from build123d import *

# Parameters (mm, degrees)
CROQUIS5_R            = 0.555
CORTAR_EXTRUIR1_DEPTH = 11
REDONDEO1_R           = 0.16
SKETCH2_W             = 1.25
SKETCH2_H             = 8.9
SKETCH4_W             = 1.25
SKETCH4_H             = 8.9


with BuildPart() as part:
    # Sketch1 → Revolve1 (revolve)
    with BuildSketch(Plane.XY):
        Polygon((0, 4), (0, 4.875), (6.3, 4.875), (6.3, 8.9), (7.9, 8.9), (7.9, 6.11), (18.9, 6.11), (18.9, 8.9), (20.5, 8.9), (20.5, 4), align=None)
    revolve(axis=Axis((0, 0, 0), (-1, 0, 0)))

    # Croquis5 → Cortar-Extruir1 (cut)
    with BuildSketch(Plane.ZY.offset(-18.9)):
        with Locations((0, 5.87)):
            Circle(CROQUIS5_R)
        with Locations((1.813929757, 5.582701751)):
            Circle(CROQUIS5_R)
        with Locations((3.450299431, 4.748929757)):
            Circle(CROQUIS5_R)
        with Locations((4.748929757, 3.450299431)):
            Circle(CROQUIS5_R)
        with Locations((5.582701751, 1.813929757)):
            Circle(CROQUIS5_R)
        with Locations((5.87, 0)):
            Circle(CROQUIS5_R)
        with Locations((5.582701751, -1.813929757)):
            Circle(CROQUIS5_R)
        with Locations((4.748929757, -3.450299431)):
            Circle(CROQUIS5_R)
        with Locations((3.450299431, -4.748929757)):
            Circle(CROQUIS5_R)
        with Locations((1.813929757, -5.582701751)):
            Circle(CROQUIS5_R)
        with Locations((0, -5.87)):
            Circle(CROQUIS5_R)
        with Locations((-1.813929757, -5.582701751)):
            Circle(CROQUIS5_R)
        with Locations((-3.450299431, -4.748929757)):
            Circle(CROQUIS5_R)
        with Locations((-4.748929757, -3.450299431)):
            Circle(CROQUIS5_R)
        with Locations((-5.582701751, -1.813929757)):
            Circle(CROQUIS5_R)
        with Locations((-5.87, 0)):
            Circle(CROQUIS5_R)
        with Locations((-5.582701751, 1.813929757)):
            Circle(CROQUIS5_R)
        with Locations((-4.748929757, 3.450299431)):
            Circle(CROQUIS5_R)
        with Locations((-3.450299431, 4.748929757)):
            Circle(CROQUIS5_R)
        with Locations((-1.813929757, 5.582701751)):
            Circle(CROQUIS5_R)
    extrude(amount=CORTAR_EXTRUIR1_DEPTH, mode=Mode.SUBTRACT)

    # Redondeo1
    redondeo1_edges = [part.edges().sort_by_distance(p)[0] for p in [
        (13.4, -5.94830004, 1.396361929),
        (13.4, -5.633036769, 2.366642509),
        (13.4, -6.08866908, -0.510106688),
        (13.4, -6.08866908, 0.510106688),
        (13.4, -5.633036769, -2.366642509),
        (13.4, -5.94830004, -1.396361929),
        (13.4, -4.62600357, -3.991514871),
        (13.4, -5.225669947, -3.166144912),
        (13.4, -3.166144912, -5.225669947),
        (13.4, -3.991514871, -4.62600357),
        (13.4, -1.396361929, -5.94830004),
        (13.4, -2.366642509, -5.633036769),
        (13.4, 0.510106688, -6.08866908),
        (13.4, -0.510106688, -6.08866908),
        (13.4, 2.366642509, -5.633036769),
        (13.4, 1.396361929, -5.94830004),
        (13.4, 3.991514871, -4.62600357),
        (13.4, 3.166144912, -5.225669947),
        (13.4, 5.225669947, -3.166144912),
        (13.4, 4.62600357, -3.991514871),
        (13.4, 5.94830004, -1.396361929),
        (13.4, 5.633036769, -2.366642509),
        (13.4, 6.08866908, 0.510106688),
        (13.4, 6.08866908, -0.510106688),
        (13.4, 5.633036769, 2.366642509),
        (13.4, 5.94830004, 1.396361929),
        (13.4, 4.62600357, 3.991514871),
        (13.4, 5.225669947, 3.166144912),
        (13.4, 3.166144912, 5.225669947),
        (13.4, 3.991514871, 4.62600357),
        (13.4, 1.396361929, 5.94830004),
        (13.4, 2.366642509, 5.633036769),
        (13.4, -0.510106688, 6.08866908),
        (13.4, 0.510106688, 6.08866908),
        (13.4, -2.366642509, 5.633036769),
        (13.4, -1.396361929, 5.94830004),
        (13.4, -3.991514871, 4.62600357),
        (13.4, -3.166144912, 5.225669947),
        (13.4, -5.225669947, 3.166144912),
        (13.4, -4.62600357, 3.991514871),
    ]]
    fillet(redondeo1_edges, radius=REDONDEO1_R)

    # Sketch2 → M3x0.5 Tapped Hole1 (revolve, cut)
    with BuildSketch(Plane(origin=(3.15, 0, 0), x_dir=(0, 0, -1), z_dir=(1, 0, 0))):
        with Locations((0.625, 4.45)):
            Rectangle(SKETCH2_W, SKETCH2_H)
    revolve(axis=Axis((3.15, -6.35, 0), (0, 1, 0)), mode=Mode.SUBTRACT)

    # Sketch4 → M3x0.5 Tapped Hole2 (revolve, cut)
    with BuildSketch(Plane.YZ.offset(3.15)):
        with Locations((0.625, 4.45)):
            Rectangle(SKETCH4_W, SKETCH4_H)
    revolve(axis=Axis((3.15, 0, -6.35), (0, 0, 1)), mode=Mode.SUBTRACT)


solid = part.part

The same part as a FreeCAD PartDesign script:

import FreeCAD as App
import Part
import Sketcher
from FreeCAD import Vector
Q = App.Units.Quantity


def edges_at(feature, points):
    """Names of the edges that pass closest to the given points."""
    edges = feature.Shape.Edges
    near = lambda p: min(range(len(edges)), key=lambda i: edges[i].distToShape(Part.Vertex(*p))[0])
    return sorted({f"Edge{near(p) + 1}" for p in points})

doc = App.newDocument("Part")
params = doc.addObject("Spreadsheet::Sheet", "Params")
for row, (alias, value) in enumerate([
    ("sketch1_width", "11 mm"),
    ("sketch1_width2", "20.5 mm"),
    ("sketch1_width3", "1.6 mm"),
    ("sketch1_height", "4.9 mm"),
    ("sketch1_height2", "2.79 mm"),
    ("revolution_angle", "360 deg"),
    ("sketch2_diameter", "1.11 mm"),
    ("pocket1_length", "11 mm"),
    ("fillet_radius", "0.16 mm"),
    ("sketch3_width", "8.9 mm"),
    ("sketch3_height", "1.25 mm"),
    ("groove_angle", "360 deg"),
    ("sketch4_height", "8.9 mm"),
    ("sketch4_width", "1.25 mm"),
    ("groove2_angle", "360 deg"),
], start=1):
    params.set(f"A{row}", alias)
    params.set(f"B{row}", "=" + value)
    params.setAlias(f"B{row}", alias)

body = doc.addObject("PartDesign::Body", "Body")

sketch1 = body.newObject("Sketcher::SketchObject", "Sketch")
sketch1.AttachmentSupport = (doc.getObject("XY_Plane"), [""])
sketch1.MapMode = "FlatFace"
sketch1.addGeometry(Part.LineSegment(Vector(0, 4.9, 0), Vector(0, 4, 0)), False)
sketch1.addGeometry(Part.LineSegment(Vector(0, 4, 0), Vector(20.5, 4, 0)), False)
sketch1.addGeometry(Part.LineSegment(Vector(20.5, 4, 0), Vector(20.5, 8.9, 0)), False)
sketch1.addGeometry(Part.LineSegment(Vector(20.5, 8.9, 0), Vector(18.9, 8.9, 0)), False)
sketch1.addGeometry(Part.LineSegment(Vector(18.9, 8.9, 0), Vector(18.9, 6.1, 0)), False)
sketch1.addGeometry(Part.LineSegment(Vector(18.9, 6.1, 0), Vector(7.9, 6.1, 0)), False)
sketch1.addGeometry(Part.LineSegment(Vector(7.9, 6.1, 0), Vector(7.9, 8.9, 0)), False)
sketch1.addGeometry(Part.LineSegment(Vector(7.9, 8.9, 0), Vector(6.3, 8.9, 0)), False)
sketch1.addGeometry(Part.LineSegment(Vector(6.3, 8.9, 0), Vector(6.3, 4.9, 0)), False)
sketch1.addGeometry(Part.LineSegment(Vector(6.3, 4.9, 0), Vector(0, 4.9, 0)), False)
sketch1.addConstraint(Sketcher.Constraint("Coincident", 0, 2, 1, 1))
sketch1.addConstraint(Sketcher.Constraint("Coincident", 1, 2, 2, 1))
sketch1.addConstraint(Sketcher.Constraint("Coincident", 2, 2, 3, 1))
sketch1.addConstraint(Sketcher.Constraint("Coincident", 3, 2, 4, 1))
sketch1.addConstraint(Sketcher.Constraint("Coincident", 4, 2, 5, 1))
sketch1.addConstraint(Sketcher.Constraint("Coincident", 5, 2, 6, 1))
sketch1.addConstraint(Sketcher.Constraint("Coincident", 6, 2, 7, 1))
sketch1.addConstraint(Sketcher.Constraint("Coincident", 7, 2, 8, 1))
sketch1.addConstraint(Sketcher.Constraint("Coincident", 8, 2, 9, 1))
sketch1.addConstraint(Sketcher.Constraint("Coincident", 9, 2, 0, 1))
sketch1.addConstraint(Sketcher.Constraint("Vertical", 0))
sketch1.addConstraint(Sketcher.Constraint("Horizontal", 1))
sketch1.addConstraint(Sketcher.Constraint("Vertical", 2))
sketch1.addConstraint(Sketcher.Constraint("Horizontal", 3))
sketch1.addConstraint(Sketcher.Constraint("Vertical", 4))
sketch1.addConstraint(Sketcher.Constraint("Horizontal", 5))
sketch1.addConstraint(Sketcher.Constraint("Vertical", 6))
sketch1.addConstraint(Sketcher.Constraint("Horizontal", 7))
sketch1.addConstraint(Sketcher.Constraint("Vertical", 8))
sketch1.addConstraint(Sketcher.Constraint("Horizontal", 9))
sketch1.addConstraint(Sketcher.Constraint("PointOnObject", 0, 2, -2))
sketch1.addConstraint(Sketcher.Constraint("Horizontal", 3, 2, 6, 2))
sketch1.addConstraint(Sketcher.Constraint("Equal", 3, 7))
sketch1.addConstraint(Sketcher.Constraint("DistanceX", 5, 2, 5, 1, Q("11 mm")))
sketch1.addConstraint(Sketcher.Constraint("DistanceX", 1, 1, 1, 2, Q("20.5 mm")))
sketch1.addConstraint(Sketcher.Constraint("DistanceX", 3, 2, 3, 1, Q("1.6 mm")))
sketch1.addConstraint(Sketcher.Constraint("DistanceY", 2, 1, 2, 2, Q("4.9 mm")))
sketch1.addConstraint(Sketcher.Constraint("DistanceY", -1, 1, 0, 2, Q("4 mm")))
sketch1.addConstraint(Sketcher.Constraint("DistanceY", 4, 2, 4, 1, Q("2.79 mm")))
sketch1.addConstraint(Sketcher.Constraint("DistanceY", 0, 2, 0, 1, Q("0.875 mm")))
sketch1.setExpression("Constraints[23]", "Params.sketch1_width")
sketch1.setExpression("Constraints[24]", "Params.sketch1_width2")
sketch1.setExpression("Constraints[25]", "Params.sketch1_width3")
sketch1.setExpression("Constraints[26]", "Params.sketch1_height")
sketch1.setExpression("Constraints[28]", "Params.sketch1_height2")
revolution = body.newObject("PartDesign::Revolution", "Revolution")
revolution.Profile = sketch1
revolution.ReferenceAxis = (sketch1, ["H_Axis"])
revolution.setExpression("Angle", "Params.revolution_angle")

sketch2 = body.newObject("Sketcher::SketchObject", "Sketch001")
sketch2.AttachmentSupport = (doc.getObject("YZ_Plane"), [""])
sketch2.MapMode = "FlatFace"
sketch2.AttachmentOffset = App.Placement(Vector(0, 0, 18.9), App.Rotation())
sketch2.addGeometry(Part.Circle(Vector(5.9, 0, 0), Vector(0, 0, 1), 0.6), False)
sketch2.addGeometry(Part.Circle(Vector(5.6, 1.8, 0), Vector(0, 0, 1), 0.6), False)
sketch2.addGeometry(Part.Circle(Vector(4.7, 3.5, 0), Vector(0, 0, 1), 0.6), False)
sketch2.addGeometry(Part.Circle(Vector(3.5, 4.7, 0), Vector(0, 0, 1), 0.6), False)
sketch2.addGeometry(Part.Circle(Vector(1.8, 5.6, 0), Vector(0, 0, 1), 0.6), False)
sketch2.addGeometry(Part.Circle(Vector(0, 5.9, 0), Vector(0, 0, 1), 0.6), False)
sketch2.addGeometry(Part.Circle(Vector(-1.8, 5.6, 0), Vector(0, 0, 1), 0.6), False)
sketch2.addGeometry(Part.Circle(Vector(-3.5, 4.7, 0), Vector(0, 0, 1), 0.6), False)
sketch2.addGeometry(Part.Circle(Vector(-4.7, 3.5, 0), Vector(0, 0, 1), 0.6), False)
sketch2.addGeometry(Part.Circle(Vector(-5.6, 1.8, 0), Vector(0, 0, 1), 0.6), False)
sketch2.addGeometry(Part.Circle(Vector(-5.9, 0, 0), Vector(0, 0, 1), 0.6), False)
sketch2.addGeometry(Part.Circle(Vector(-5.6, -1.8, 0), Vector(0, 0, 1), 0.6), False)
sketch2.addGeometry(Part.Circle(Vector(-4.7, -3.5, 0), Vector(0, 0, 1), 0.6), False)
sketch2.addGeometry(Part.Circle(Vector(-3.5, -4.7, 0), Vector(0, 0, 1), 0.6), False)
sketch2.addGeometry(Part.Circle(Vector(-1.8, -5.6, 0), Vector(0, 0, 1), 0.6), False)
sketch2.addGeometry(Part.Circle(Vector(0, -5.9, 0), Vector(0, 0, 1), 0.6), False)
sketch2.addGeometry(Part.Circle(Vector(1.8, -5.6, 0), Vector(0, 0, 1), 0.6), False)
sketch2.addGeometry(Part.Circle(Vector(3.5, -4.7, 0), Vector(0, 0, 1), 0.6), False)
sketch2.addGeometry(Part.Circle(Vector(4.7, -3.5, 0), Vector(0, 0, 1), 0.6), False)
sketch2.addGeometry(Part.Circle(Vector(5.6, -1.8, 0), Vector(0, 0, 1), 0.6), False)
sketch2.addConstraint(Sketcher.Constraint("Equal", 0, 1))
sketch2.addConstraint(Sketcher.Constraint("Equal", 1, 2))
sketch2.addConstraint(Sketcher.Constraint("Equal", 2, 3))
sketch2.addConstraint(Sketcher.Constraint("Equal", 3, 4))
sketch2.addConstraint(Sketcher.Constraint("Equal", 4, 5))
sketch2.addConstraint(Sketcher.Constraint("Equal", 5, 6))
sketch2.addConstraint(Sketcher.Constraint("Equal", 6, 7))
sketch2.addConstraint(Sketcher.Constraint("Equal", 7, 8))
sketch2.addConstraint(Sketcher.Constraint("Equal", 8, 9))
sketch2.addConstraint(Sketcher.Constraint("Equal", 9, 10))
sketch2.addConstraint(Sketcher.Constraint("Equal", 10, 11))
sketch2.addConstraint(Sketcher.Constraint("Equal", 11, 12))
sketch2.addConstraint(Sketcher.Constraint("Equal", 12, 13))
sketch2.addConstraint(Sketcher.Constraint("Equal", 13, 14))
sketch2.addConstraint(Sketcher.Constraint("Equal", 14, 15))
sketch2.addConstraint(Sketcher.Constraint("Equal", 15, 16))
sketch2.addConstraint(Sketcher.Constraint("Equal", 16, 17))
sketch2.addConstraint(Sketcher.Constraint("Equal", 17, 18))
sketch2.addConstraint(Sketcher.Constraint("Equal", 18, 19))
sketch2.addConstraint(Sketcher.Constraint("Symmetric", 0, 3, 10, 3, -1, 1))
sketch2.addConstraint(Sketcher.Constraint("Symmetric", 1, 3, 11, 3, -1, 1))
sketch2.addConstraint(Sketcher.Constraint("Symmetric", 2, 3, 12, 3, -1, 1))
sketch2.addConstraint(Sketcher.Constraint("Symmetric", 3, 3, 13, 3, -1, 1))
sketch2.addConstraint(Sketcher.Constraint("Symmetric", 4, 3, 14, 3, -1, 1))
sketch2.addConstraint(Sketcher.Constraint("Symmetric", 5, 3, 15, 3, -1, 1))
sketch2.addConstraint(Sketcher.Constraint("Symmetric", 6, 3, 16, 3, -1, 1))
sketch2.addConstraint(Sketcher.Constraint("Symmetric", 7, 3, 17, 3, -1, 1))
sketch2.addConstraint(Sketcher.Constraint("Symmetric", 8, 3, 18, 3, -1, 1))
sketch2.addConstraint(Sketcher.Constraint("Symmetric", 9, 3, 19, 3, -1, 1))
sketch2.addConstraint(Sketcher.Constraint("Symmetric", 4, 3, 6, 3, -2))
sketch2.addConstraint(Sketcher.Constraint("Symmetric", 3, 3, 7, 3, -2))
sketch2.addConstraint(Sketcher.Constraint("Symmetric", 2, 3, 8, 3, -2))
sketch2.addConstraint(Sketcher.Constraint("Symmetric", 1, 3, 9, 3, -2))
sketch2.addConstraint(Sketcher.Constraint("PointOnObject", 0, 3, -1))
sketch2.addConstraint(Sketcher.Constraint("PointOnObject", 5, 3, -2))
sketch2.addConstraint(Sketcher.Constraint("Diameter", 0, Q("1.11 mm")))
sketch2.addConstraint(Sketcher.Constraint("DistanceX", -1, 1, 0, 3, Q("5.87 mm")))
sketch2.addConstraint(Sketcher.Constraint("DistanceY", -1, 1, 5, 3, Q("5.87 mm")))
sketch2.addConstraint(Sketcher.Constraint("DistanceY", 1, 3, 3, 3, Q("2.935 mm")))
sketch2.addConstraint(Sketcher.Constraint("DistanceX", 4, 3, 2, 3, Q("2.935 mm")))
sketch2.addConstraint(Sketcher.Constraint("DistanceX", -1, 1, 1, 3, Q("5.582702 mm")))
sketch2.addConstraint(Sketcher.Constraint("DistanceY", -1, 1, 2, 3, Q("3.450299 mm")))
sketch2.addConstraint(Sketcher.Constraint("DistanceX", -1, 1, 3, 3, Q("3.450299 mm")))
sketch2.addConstraint(Sketcher.Constraint("DistanceY", -1, 1, 4, 3, Q("5.582702 mm")))
sketch2.addConstraint(Sketcher.Constraint("DistanceY", -1, 1, 1, 3, Q("1.81393 mm")))
sketch2.addConstraint(Sketcher.Constraint("DistanceX", -1, 1, 2, 3, Q("4.74893 mm")))
sketch2.setExpression("Constraints[35]", "Params.sketch2_diameter")
pocket1 = body.newObject("PartDesign::Pocket", "Pocket")
pocket1.Profile = sketch2
pocket1.setExpression("Length", "Params.pocket1_length")
doc.recompute()

fillet = body.newObject("PartDesign::Fillet", "Fillet")
fillet.Base = (pocket1, edges_at(pocket1, [
    (13.4, -5.948, 1.396),
    (13.4, -5.633, 2.367),
    (13.4, -6.089, -0.51),
    (13.4, -6.089, 0.51),
    (13.4, -5.633, -2.367),
    (13.4, -5.948, -1.396),
    (13.4, -4.626, -3.992),
    (13.4, -5.226, -3.166),
    (13.4, -3.166, -5.226),
    (13.4, -3.992, -4.626),
    (13.4, -1.396, -5.948),
    (13.4, -2.367, -5.633),
    (13.4, 0.51, -6.089),
    (13.4, -0.51, -6.089),
    (13.4, 2.367, -5.633),
    (13.4, 1.396, -5.948),
    (13.4, 3.992, -4.626),
    (13.4, 3.166, -5.226),
    (13.4, 5.226, -3.166),
    (13.4, 4.626, -3.992),
    (13.4, 5.948, -1.396),
    (13.4, 5.633, -2.367),
    (13.4, 6.089, 0.51),
    (13.4, 6.089, -0.51),
    (13.4, 5.633, 2.367),
    (13.4, 5.948, 1.396),
    (13.4, 4.626, 3.992),
    (13.4, 5.226, 3.166),
    (13.4, 3.166, 5.226),
    (13.4, 3.992, 4.626),
    (13.4, 1.396, 5.948),
    (13.4, 2.367, 5.633),
    (13.4, -0.51, 6.089),
    (13.4, 0.51, 6.089),
    (13.4, -2.367, 5.633),
    (13.4, -1.396, 5.948),
    (13.4, -3.992, 4.626),
    (13.4, -3.166, 5.226),
    (13.4, -5.226, 3.166),
    (13.4, -4.626, 3.992),
]))
fillet.setExpression("Radius", "Params.fillet_radius")

sketch3 = body.newObject("Sketcher::SketchObject", "Sketch002")
sketch3.AttachmentSupport = (doc.getObject("YZ_Plane"), [""])
sketch3.MapMode = "FlatFace"
sketch3.AttachmentOffset = App.Placement(Vector(0, 0, 3.15), App.Rotation())
sketch3.addGeometry(Part.LineSegment(Vector(8.9, 0, 0), Vector(0, 0, 0)), False)
sketch3.addGeometry(Part.LineSegment(Vector(0, 0, 0), Vector(0, -1.2, 0)), False)
sketch3.addGeometry(Part.LineSegment(Vector(0, -1.2, 0), Vector(8.9, -1.2, 0)), False)
sketch3.addGeometry(Part.LineSegment(Vector(8.9, -1.2, 0), Vector(8.9, 0, 0)), False)
sketch3.addConstraint(Sketcher.Constraint("Coincident", 0, 2, 1, 1))
sketch3.addConstraint(Sketcher.Constraint("Coincident", 1, 2, 2, 1))
sketch3.addConstraint(Sketcher.Constraint("Coincident", 2, 2, 3, 1))
sketch3.addConstraint(Sketcher.Constraint("Coincident", 3, 2, 0, 1))
sketch3.addConstraint(Sketcher.Constraint("Horizontal", 0))
sketch3.addConstraint(Sketcher.Constraint("Vertical", 1))
sketch3.addConstraint(Sketcher.Constraint("Horizontal", 2))
sketch3.addConstraint(Sketcher.Constraint("Vertical", 3))
sketch3.addConstraint(Sketcher.Constraint("Coincident", 0, 2, -1, 1))
sketch3.addConstraint(Sketcher.Constraint("DistanceX", 0, 2, 0, 1, Q("8.9 mm")))
sketch3.addConstraint(Sketcher.Constraint("DistanceY", 1, 2, 1, 1, Q("1.25 mm")))
sketch3.setExpression("Constraints[9]", "Params.sketch3_width")
sketch3.setExpression("Constraints[10]", "Params.sketch3_height")
groove = body.newObject("PartDesign::Groove", "Groove")
groove.Profile = sketch3
groove.ReferenceAxis = (sketch3, ["H_Axis"])
groove.setExpression("Angle", "Params.groove_angle")

sketch4 = body.newObject("Sketcher::SketchObject", "Sketch003")
sketch4.AttachmentSupport = (doc.getObject("YZ_Plane"), [""])
sketch4.MapMode = "FlatFace"
sketch4.AttachmentOffset = App.Placement(Vector(0, 0, 3.15), App.Rotation())
sketch4.addGeometry(Part.LineSegment(Vector(0, 8.9, 0), Vector(0, 0, 0)), False)
sketch4.addGeometry(Part.LineSegment(Vector(0, 0, 0), Vector(1.2, 0, 0)), False)
sketch4.addGeometry(Part.LineSegment(Vector(1.2, 0, 0), Vector(1.2, 8.9, 0)), False)
sketch4.addGeometry(Part.LineSegment(Vector(1.2, 8.9, 0), Vector(0, 8.9, 0)), False)
sketch4.addConstraint(Sketcher.Constraint("Coincident", 0, 2, 1, 1))
sketch4.addConstraint(Sketcher.Constraint("Coincident", 1, 2, 2, 1))
sketch4.addConstraint(Sketcher.Constraint("Coincident", 2, 2, 3, 1))
sketch4.addConstraint(Sketcher.Constraint("Coincident", 3, 2, 0, 1))
sketch4.addConstraint(Sketcher.Constraint("Vertical", 0))
sketch4.addConstraint(Sketcher.Constraint("Horizontal", 1))
sketch4.addConstraint(Sketcher.Constraint("Vertical", 2))
sketch4.addConstraint(Sketcher.Constraint("Horizontal", 3))
sketch4.addConstraint(Sketcher.Constraint("Coincident", 0, 2, -1, 1))
sketch4.addConstraint(Sketcher.Constraint("DistanceY", 0, 2, 0, 1, Q("8.9 mm")))
sketch4.addConstraint(Sketcher.Constraint("DistanceX", 1, 1, 1, 2, Q("1.25 mm")))
sketch4.setExpression("Constraints[9]", "Params.sketch4_height")
sketch4.setExpression("Constraints[10]", "Params.sketch4_width")
groove2 = body.newObject("PartDesign::Groove", "Groove001")
groove2.Profile = sketch4
groove2.ReferenceAxis = (sketch4, ["V_Axis"])
groove2.setExpression("Angle", "Params.groove2_angle")

doc.recompute()
